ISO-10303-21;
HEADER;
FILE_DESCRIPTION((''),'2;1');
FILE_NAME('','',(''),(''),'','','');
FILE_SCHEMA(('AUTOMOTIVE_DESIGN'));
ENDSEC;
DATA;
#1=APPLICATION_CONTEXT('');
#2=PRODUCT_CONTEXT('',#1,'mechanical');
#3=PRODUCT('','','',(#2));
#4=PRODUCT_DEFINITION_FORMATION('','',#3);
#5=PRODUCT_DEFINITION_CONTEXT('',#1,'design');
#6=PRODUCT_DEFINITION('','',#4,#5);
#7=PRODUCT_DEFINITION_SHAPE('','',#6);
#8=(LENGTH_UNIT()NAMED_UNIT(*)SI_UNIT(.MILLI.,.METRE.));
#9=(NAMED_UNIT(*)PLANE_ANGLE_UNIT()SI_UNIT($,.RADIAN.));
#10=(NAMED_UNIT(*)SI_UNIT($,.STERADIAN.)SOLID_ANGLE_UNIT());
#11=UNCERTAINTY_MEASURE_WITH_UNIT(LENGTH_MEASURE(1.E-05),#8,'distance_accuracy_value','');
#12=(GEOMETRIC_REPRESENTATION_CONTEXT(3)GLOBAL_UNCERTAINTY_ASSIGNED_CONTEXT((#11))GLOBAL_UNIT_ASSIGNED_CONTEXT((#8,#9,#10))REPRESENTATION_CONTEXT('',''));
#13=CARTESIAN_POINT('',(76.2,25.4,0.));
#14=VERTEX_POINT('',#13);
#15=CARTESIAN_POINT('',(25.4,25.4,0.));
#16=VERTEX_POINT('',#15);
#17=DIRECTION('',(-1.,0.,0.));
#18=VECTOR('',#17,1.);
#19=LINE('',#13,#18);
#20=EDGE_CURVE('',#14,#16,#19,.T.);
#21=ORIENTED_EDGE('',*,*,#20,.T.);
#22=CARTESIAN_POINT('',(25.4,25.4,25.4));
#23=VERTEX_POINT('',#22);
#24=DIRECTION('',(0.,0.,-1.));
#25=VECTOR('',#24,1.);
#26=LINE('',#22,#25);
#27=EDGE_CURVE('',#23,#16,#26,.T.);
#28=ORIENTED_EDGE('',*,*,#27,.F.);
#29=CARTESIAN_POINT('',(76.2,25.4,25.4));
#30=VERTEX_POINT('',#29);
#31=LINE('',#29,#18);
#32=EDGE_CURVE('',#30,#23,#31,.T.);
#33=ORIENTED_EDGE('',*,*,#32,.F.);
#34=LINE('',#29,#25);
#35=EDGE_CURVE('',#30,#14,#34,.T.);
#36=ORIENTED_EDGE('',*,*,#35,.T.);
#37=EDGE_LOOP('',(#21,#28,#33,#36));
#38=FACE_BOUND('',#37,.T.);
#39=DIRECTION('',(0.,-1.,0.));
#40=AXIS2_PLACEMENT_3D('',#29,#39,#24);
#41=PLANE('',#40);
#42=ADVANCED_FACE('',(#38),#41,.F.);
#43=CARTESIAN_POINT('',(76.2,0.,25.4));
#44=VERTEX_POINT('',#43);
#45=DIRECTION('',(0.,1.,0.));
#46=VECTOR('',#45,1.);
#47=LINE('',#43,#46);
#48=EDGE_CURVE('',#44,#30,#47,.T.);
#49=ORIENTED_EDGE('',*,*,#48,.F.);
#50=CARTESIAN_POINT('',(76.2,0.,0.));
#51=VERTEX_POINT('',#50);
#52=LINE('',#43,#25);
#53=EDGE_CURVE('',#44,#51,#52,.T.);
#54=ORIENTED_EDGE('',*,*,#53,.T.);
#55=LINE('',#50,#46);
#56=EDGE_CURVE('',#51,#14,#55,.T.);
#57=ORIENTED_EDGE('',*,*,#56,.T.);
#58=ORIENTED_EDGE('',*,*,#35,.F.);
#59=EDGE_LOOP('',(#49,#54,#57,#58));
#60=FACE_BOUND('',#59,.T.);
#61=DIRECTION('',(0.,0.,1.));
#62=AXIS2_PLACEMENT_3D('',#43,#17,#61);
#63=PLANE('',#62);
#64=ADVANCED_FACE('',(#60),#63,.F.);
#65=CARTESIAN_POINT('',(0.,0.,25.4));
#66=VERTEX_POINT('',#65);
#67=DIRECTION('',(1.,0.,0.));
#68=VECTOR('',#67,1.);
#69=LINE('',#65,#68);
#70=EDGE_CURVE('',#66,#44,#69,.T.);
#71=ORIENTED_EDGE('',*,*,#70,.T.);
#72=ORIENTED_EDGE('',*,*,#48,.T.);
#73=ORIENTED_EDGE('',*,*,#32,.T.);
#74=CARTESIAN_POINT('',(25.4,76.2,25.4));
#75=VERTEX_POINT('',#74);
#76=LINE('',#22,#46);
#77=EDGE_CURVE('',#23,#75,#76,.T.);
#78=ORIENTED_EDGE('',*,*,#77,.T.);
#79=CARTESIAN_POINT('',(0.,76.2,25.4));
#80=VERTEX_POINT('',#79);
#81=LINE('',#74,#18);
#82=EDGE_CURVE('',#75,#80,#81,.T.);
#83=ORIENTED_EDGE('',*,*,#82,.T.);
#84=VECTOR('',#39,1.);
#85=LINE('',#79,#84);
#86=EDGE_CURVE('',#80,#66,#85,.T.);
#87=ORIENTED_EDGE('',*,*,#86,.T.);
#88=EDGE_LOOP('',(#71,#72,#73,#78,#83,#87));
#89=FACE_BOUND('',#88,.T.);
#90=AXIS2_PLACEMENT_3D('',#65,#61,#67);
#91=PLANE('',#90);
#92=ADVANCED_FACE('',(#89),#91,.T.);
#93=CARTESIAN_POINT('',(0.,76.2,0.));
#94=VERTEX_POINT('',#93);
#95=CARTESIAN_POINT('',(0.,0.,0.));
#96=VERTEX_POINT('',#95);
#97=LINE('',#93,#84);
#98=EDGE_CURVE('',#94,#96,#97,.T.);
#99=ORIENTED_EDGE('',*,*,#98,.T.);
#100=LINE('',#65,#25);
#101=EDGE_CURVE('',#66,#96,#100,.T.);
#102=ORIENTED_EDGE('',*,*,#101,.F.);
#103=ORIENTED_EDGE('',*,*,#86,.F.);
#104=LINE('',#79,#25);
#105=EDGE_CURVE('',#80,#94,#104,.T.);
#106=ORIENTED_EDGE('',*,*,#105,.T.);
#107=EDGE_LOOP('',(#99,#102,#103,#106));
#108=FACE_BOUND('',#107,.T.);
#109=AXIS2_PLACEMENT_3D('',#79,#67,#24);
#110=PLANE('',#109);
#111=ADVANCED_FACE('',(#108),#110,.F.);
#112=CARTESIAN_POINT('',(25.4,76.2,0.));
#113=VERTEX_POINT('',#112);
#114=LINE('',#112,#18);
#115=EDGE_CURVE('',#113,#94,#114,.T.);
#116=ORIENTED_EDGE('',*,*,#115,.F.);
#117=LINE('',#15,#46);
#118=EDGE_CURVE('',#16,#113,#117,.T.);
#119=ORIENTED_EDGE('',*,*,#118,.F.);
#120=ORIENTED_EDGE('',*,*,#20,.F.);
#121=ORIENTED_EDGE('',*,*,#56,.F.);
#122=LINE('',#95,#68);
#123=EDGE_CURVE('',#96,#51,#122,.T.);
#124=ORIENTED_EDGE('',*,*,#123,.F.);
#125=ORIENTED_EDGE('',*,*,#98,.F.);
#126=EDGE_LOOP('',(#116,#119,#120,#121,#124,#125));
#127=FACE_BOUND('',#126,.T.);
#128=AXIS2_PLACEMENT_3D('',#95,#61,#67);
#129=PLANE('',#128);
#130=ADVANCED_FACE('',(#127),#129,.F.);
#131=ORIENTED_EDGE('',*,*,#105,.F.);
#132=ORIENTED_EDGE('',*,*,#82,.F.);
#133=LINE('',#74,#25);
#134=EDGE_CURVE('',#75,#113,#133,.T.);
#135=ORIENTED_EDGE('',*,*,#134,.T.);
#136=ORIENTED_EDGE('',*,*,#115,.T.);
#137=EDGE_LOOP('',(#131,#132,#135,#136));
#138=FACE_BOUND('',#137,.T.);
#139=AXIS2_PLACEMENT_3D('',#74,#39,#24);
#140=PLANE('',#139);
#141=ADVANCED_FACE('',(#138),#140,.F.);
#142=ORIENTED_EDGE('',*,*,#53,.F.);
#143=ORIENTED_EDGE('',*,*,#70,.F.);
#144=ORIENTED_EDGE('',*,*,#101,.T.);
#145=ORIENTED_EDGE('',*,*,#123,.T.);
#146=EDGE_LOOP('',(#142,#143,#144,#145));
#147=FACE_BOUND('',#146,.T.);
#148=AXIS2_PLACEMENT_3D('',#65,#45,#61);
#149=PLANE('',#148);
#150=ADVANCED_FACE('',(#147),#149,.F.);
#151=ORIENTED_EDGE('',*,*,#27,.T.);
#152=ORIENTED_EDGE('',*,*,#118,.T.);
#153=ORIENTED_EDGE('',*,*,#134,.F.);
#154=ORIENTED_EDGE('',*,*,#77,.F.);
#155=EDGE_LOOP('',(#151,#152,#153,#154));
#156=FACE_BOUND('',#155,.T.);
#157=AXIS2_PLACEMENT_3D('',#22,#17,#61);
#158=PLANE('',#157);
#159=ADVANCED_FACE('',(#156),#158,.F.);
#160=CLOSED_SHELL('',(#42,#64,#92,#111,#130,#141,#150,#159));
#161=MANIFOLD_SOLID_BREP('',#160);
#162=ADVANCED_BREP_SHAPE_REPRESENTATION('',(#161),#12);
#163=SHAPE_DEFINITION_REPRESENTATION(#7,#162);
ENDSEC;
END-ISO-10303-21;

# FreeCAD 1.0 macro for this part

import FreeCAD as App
import Part
import Sketcher
from FreeCAD import Vector
Q = App.Units.Quantity


def add_polygon(sketch, points):
    """Adds a closed chain of lines whose ends are joined by coincident constraints."""
    first, n = sketch.GeometryCount, len(points)
    for a, b in zip(points, points[1:] + points[:1]):
        sketch.addGeometry(Part.LineSegment(App.Vector(*a, 0), App.Vector(*b, 0)), False)
    for i in range(n):
        sketch.addConstraint(Sketcher.Constraint("Coincident", first + i, 2, first + (i + 1) % n, 1))

doc = App.newDocument("Part")
body = doc.addObject("PartDesign::Body", "Body")

sketch1 = body.newObject("Sketcher::SketchObject", "Sketch")
sketch1.AttachmentSupport = (doc.getObject("XY_Plane"), [""])
sketch1.MapMode = "FlatFace"
add_polygon(sketch1, [(76, 0), (76, 25), (25, 25), (25, 76), (0, 76), (0, 0)])
sketch1.addConstraint(Sketcher.Constraint("Vertical", 0))
sketch1.addConstraint(Sketcher.Constraint("Horizontal", 1))
sketch1.addConstraint(Sketcher.Constraint("Vertical", 2))
sketch1.addConstraint(Sketcher.Constraint("Horizontal", 3))
sketch1.addConstraint(Sketcher.Constraint("Vertical", 4))
sketch1.addConstraint(Sketcher.Constraint("Horizontal", 5))
sketch1.addConstraint(Sketcher.Constraint("Coincident", 4, 2, -1, 1))
sketch1.addConstraint(Sketcher.Constraint("Equal", 3, 0))
sketch1.addConstraint(Sketcher.Constraint("Equal", 1, 2))
sketch1.addConstraint(Sketcher.Constraint("DistanceX", 1, 2, 1, 1, Q("2 in")))
sketch1.addConstraint(Sketcher.Constraint("DistanceX", 3, 2, 3, 1, Q("1 in")))
pad1 = body.newObject("PartDesign::Pad", "Pad")
pad1.Profile = sketch1
pad1.Length = Q("1 in")

doc.recompute()
